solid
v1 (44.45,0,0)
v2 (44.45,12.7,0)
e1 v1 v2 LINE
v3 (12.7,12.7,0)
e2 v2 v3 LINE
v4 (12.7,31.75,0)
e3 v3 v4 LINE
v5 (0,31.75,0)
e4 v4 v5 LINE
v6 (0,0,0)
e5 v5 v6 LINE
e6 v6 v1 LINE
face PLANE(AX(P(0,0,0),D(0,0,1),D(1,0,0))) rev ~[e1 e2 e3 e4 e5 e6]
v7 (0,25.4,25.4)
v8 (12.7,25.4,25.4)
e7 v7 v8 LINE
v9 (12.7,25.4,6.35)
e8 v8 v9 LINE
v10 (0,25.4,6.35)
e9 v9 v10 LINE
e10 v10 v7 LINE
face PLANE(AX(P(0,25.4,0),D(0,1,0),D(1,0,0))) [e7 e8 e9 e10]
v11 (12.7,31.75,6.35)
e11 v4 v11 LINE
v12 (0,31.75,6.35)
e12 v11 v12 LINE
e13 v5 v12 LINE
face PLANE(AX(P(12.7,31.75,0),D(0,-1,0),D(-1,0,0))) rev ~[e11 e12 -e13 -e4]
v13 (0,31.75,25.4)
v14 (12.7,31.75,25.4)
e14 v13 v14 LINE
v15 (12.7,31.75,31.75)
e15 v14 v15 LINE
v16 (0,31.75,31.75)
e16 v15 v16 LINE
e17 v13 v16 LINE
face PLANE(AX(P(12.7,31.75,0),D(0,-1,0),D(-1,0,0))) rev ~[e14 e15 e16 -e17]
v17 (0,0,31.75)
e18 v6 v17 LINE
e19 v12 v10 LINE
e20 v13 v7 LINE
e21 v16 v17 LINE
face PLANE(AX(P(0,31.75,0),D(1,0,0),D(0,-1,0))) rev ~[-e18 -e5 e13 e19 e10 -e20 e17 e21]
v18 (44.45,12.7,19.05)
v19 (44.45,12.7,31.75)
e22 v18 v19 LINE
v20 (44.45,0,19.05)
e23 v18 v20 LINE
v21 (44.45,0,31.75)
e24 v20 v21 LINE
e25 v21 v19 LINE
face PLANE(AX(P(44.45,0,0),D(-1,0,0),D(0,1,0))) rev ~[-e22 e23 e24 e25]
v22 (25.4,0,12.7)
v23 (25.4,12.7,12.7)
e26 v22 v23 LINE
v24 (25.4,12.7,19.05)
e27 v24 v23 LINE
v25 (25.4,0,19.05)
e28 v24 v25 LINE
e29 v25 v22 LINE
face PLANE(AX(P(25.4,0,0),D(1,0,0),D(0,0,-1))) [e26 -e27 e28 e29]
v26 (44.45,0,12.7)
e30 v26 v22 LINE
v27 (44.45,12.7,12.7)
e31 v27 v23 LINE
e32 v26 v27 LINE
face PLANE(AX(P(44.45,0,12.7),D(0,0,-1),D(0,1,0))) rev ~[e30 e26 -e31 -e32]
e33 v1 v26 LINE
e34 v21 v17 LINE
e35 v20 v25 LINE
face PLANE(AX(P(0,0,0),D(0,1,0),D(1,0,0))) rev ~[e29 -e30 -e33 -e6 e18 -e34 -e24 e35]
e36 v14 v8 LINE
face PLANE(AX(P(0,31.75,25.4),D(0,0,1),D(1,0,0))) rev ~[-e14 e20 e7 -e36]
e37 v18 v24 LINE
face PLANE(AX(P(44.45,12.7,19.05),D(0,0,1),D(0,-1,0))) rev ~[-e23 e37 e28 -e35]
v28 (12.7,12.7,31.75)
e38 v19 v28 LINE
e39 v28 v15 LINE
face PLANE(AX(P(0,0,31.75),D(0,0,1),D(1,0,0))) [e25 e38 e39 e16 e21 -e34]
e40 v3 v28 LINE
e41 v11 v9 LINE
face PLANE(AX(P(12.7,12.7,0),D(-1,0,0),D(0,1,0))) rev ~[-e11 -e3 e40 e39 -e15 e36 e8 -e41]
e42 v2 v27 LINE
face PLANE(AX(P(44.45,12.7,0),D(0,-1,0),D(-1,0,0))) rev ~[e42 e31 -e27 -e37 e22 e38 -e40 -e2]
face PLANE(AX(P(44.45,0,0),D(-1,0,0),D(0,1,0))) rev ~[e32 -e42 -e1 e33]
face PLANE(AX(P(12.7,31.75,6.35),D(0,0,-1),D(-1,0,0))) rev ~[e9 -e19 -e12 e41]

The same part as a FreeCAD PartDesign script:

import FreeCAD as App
import Part
import Sketcher
Q = App.Units.Quantity

doc = App.newDocument("Part")
body = doc.addObject("PartDesign::Body", "Body")

sketch1 = body.newObject("Sketcher::SketchObject", "Sketch")
sketch1.AttachmentSupport = (doc.getObject("XY_Plane"), [""])
sketch1.MapMode = "FlatFace"
sketch1.addGeometry([
    Part.LineSegment(App.Vector(0, 31.75, 0), App.Vector(0, 0, 0)),
    Part.LineSegment(App.Vector(0, 0, 0), App.Vector(44.45, 0, 0)),
    Part.LineSegment(App.Vector(44.45, 0, 0), App.Vector(44.45, 12.7, 0)),
    Part.LineSegment(App.Vector(44.45, 12.7, 0), App.Vector(12.7, 12.7, 0)),
    Part.LineSegment(App.Vector(12.7, 12.7, 0), App.Vector(12.7, 31.75, 0)),
    Part.LineSegment(App.Vector(12.7, 31.75, 0), App.Vector(0, 31.75, 0)),
], False)
sketch1.addConstraint([
    Sketcher.Constraint("Coincident", 0, 2, 1, 1),
    Sketcher.Constraint("Coincident", 1, 2, 2, 1),
    Sketcher.Constraint("Coincident", 2, 2, 3, 1),
    Sketcher.Constraint("Coincident", 3, 2, 4, 1),
    Sketcher.Constraint("Coincident", 4, 2, 5, 1),
    Sketcher.Constraint("Coincident", 5, 2, 0, 1),
    Sketcher.Constraint("Vertical", 0),
    Sketcher.Constraint("Horizontal", 1),
    Sketcher.Constraint("Vertical", 2),
    Sketcher.Constraint("Horizontal", 3),
    Sketcher.Constraint("Vertical", 4),
    Sketcher.Constraint("Horizontal", 5),
    Sketcher.Constraint("Coincident", 0, 2, -1, 1),
    Sketcher.Constraint("Equal", 3, 0),
    Sketcher.Constraint("Equal", 5, 2),
    Sketcher.Constraint("DistanceX", 5, 2, 5, 1, Q("0.5 in")),
    Sketcher.Constraint("DistanceX", 1, 1, 1, 2, Q("1.75 in")),
])
pad1 = body.newObject("PartDesign::Pad", "Pad")
pad1.Profile = sketch1
pad1.Length = Q("1.25 in")

sketch2 = body.newObject("Sketcher::SketchObject", "Sketch001")
sketch2.AttachmentSupport = (doc.getObject("YZ_Plane"), [""])
sketch2.MapMode = "FlatFace"
sketch2.AttachmentOffset = App.Placement(App.Vector(0, 0, 1.75 * 25.4), App.Rotation())
sketch2.addGeometry([
    Part.LineSegment(App.Vector(0, 12.7, 0), App.Vector(12.7, 12.7, 0)),
    Part.LineSegment(App.Vector(12.7, 12.7, 0), App.Vector(12.7, 19.05, 0)),
    Part.LineSegment(App.Vector(12.7, 19.05, 0), App.Vector(0, 19.05, 0)),
    Part.LineSegment(App.Vector(0, 19.05, 0), App.Vector(0, 12.7, 0)),
], False)
sketch2.addConstraint([
    Sketcher.Constraint("Coincident", 0, 2, 1, 1),
    Sketcher.Constraint("Coincident", 1, 2, 2, 1),
    Sketcher.Constraint("Coincident", 2, 2, 3, 1),
    Sketcher.Constraint("Coincident", 3, 2, 0, 1),
    Sketcher.Constraint("Horizontal", 0),
    Sketcher.Constraint("Vertical", 1),
    Sketcher.Constraint("Horizontal", 2),
    Sketcher.Constraint("Vertical", 3),
    Sketcher.Constraint("PointOnObject", 2, 2, -2),
    Sketcher.Constraint("DistanceX", 0, 1, 0, 2, Q("0.5 in")),
    Sketcher.Constraint("DistanceY", 1, 1, 1, 2, Q("0.25 in")),
    Sketcher.Constraint("DistanceY", -1, 1, 0, 2, Q("0.5 in")),
])
pocket1 = body.newObject("PartDesign::Pocket", "Pocket")
pocket1.Profile = sketch2
pocket1.Length = Q("0.75 in")

sketch3 = body.newObject("Sketcher::SketchObject", "Sketch002")
sketch3.AttachmentSupport = (doc.getObject("XZ_Plane"), [""])
sketch3.MapMode = "FlatFace"
sketch3.AttachmentOffset = App.Placement(App.Vector(0, 0, -1.25 * 25.4), App.Rotation())
sketch3.addGeometry([
    Part.LineSegment(App.Vector(0, 6.35, 0), App.Vector(0, 25.4, 0)),
    Part.LineSegment(App.Vector(0, 25.4, 0), App.Vector(12.7, 25.4, 0)),
    Part.LineSegment(App.Vector(12.7, 25.4, 0), App.Vector(12.7, 6.35, 0)),
    Part.LineSegment(App.Vector(12.7, 6.35, 0), App.Vector(0, 6.35, 0)),
], False)
sketch3.addConstraint([
    Sketcher.Constraint("Coincident", 0, 2, 1, 1),
    Sketcher.Constraint("Coincident", 1, 2, 2, 1),
    Sketcher.Constraint("Coincident", 2, 2, 3, 1),
    Sketcher.Constraint("Coincident", 3, 2, 0, 1),
    Sketcher.Constraint("Vertical", 0),
    Sketcher.Constraint("Horizontal", 1),
    Sketcher.Constraint("Vertical", 2),
    Sketcher.Constraint("Horizontal", 3),
    Sketcher.Constraint("PointOnObject", 0, 2, -2),
    Sketcher.Constraint("DistanceX", 1, 1, 1, 2, Q("0.5 in")),
    Sketcher.Constraint("DistanceY", 0, 1, 0, 2, Q("0.75 in")),
    Sketcher.Constraint("DistanceY", -1, 1, 2, 2, Q("0.25 in")),
])
pocket2 = body.newObject("PartDesign::Pocket", "Pocket001")
pocket2.Profile = sketch3
pocket2.Length = Q("0.25 in")
pocket2.Reversed = True

doc.recompute()
